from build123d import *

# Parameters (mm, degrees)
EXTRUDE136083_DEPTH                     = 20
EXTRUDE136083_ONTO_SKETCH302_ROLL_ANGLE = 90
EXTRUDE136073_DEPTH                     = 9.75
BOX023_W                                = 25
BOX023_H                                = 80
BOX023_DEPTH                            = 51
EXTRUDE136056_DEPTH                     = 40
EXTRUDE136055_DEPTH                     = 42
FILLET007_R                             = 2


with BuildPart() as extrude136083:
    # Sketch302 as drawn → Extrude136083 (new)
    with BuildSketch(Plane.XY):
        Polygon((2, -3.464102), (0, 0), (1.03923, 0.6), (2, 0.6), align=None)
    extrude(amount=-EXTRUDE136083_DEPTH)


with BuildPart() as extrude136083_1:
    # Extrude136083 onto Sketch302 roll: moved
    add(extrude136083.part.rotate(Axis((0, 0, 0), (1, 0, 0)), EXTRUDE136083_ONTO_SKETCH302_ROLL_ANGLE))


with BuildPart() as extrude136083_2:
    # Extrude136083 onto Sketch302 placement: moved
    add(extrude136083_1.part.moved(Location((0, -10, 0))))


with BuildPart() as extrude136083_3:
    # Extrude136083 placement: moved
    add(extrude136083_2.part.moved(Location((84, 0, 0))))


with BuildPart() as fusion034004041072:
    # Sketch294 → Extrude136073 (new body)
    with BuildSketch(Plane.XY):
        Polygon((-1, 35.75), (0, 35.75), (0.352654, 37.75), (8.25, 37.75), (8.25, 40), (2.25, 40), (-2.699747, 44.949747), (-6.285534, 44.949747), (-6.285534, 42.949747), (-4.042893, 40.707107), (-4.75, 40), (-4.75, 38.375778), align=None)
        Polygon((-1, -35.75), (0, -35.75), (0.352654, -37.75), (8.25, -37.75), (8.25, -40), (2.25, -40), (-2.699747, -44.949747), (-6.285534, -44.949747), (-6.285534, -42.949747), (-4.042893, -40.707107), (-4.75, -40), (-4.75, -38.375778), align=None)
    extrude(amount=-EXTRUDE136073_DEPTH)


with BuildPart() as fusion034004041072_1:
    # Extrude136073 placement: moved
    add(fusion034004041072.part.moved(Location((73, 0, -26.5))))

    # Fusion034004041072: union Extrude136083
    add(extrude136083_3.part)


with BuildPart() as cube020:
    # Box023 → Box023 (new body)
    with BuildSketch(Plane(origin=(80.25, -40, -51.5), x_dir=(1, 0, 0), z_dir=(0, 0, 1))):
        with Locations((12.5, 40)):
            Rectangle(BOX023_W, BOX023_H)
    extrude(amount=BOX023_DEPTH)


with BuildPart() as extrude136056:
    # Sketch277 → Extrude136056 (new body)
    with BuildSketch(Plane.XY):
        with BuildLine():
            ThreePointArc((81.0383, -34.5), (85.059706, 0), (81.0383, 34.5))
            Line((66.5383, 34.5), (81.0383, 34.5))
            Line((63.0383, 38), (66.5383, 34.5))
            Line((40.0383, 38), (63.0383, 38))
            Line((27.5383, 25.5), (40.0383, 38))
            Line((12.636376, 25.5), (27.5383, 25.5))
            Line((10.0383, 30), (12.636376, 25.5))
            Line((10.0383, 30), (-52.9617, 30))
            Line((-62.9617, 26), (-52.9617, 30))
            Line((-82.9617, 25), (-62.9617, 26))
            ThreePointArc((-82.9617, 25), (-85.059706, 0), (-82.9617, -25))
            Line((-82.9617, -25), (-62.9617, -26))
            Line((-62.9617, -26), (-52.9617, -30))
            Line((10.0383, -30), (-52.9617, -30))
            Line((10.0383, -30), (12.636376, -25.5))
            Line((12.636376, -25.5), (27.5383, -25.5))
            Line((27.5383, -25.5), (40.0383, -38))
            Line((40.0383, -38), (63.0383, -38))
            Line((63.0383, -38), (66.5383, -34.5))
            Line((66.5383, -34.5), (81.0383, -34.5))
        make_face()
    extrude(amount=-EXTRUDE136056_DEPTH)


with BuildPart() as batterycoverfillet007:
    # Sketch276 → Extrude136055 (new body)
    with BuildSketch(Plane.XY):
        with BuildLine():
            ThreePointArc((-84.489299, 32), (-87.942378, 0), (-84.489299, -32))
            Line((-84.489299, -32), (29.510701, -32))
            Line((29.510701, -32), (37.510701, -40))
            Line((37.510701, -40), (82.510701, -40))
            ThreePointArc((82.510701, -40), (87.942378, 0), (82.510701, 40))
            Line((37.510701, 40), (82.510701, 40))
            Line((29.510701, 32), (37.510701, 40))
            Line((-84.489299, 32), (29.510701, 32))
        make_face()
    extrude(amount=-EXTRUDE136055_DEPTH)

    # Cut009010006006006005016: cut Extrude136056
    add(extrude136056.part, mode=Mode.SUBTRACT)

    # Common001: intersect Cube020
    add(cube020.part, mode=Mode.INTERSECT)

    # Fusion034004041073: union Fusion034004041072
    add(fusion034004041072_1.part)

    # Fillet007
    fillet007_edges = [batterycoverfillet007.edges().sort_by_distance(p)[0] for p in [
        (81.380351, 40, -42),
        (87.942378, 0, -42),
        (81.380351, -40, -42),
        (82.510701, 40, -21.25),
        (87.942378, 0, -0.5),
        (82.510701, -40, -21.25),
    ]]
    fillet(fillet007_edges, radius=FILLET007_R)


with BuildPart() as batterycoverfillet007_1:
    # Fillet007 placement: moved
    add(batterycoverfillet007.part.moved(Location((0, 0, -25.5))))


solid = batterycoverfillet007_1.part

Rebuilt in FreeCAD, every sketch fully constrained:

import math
import FreeCAD as App
import Part
import Sketcher

V = App.Vector
Q = App.Units.Quantity


def edges_at(feature, points):
    """Names of the edges that pass closest to the given points."""
    edges = feature.Shape.Edges
    near = lambda p: min(range(len(edges)), key=lambda i: edges[i].distToShape(Part.Vertex(*p))[0])
    return sorted({f"Edge{near(p) + 1}" for p in points})

doc = App.newDocument("Part")
body = doc.addObject("PartDesign::Body", "Body")

sketch1 = doc.addObject("Sketcher::SketchObject", "Sketch")
body.addObject(sketch1)
sketch1.AttachmentSupport = (doc.XY_Plane, [""])
sketch1.MapMode = "FlatFace"
sketch1.addGeometry(Part.LineSegment(V(0, 0, 0), V(2, -3.5, 0)), False)
sketch1.addGeometry(Part.LineSegment(V(2, -3.5, 0), V(2, 0.6, 0)), False)
sketch1.addGeometry(Part.LineSegment(V(2, 0.6, 0), V(1, 0.6, 0)), False)
sketch1.addGeometry(Part.LineSegment(V(1, 0.6, 0), V(0, 0, 0)), False)
sketch1.addConstraint(Sketcher.Constraint("Coincident", 0, 2, 1, 1))
sketch1.addConstraint(Sketcher.Constraint("Coincident", 1, 2, 2, 1))
sketch1.addConstraint(Sketcher.Constraint("Coincident", 2, 2, 3, 1))
sketch1.addConstraint(Sketcher.Constraint("Coincident", 3, 2, 0, 1))
sketch1.addConstraint(Sketcher.Constraint("Vertical", 1))
sketch1.addConstraint(Sketcher.Constraint("Horizontal", 2))
sketch1.addConstraint(Sketcher.Constraint("Coincident", 3, 2, -1, 1))
sketch1.addConstraint(Sketcher.Constraint("Perpendicular", 0, 3))
sketch1.addConstraint(Sketcher.Constraint("Angle", 0, Q("-60.000003 deg")))
sketch1.addConstraint(Sketcher.Constraint("Distance", 0, 4.0))
sketch1.addConstraint(Sketcher.Constraint("Distance", 3, 1.2))
pad1 = doc.addObject("PartDesign::Pad", "Pad")
body.addObject(pad1)
pad1.Profile = sketch1
pad1.Length = 20
pad1.Reversed = True
body2 = doc.addObject("PartDesign::Body", "Body001")
doc.recompute()

body.Placement = App.Placement(V(0, 0, 0), App.Rotation(V(1, 0, 0), 90))
boolean = doc.addObject("PartDesign::Boolean", "Boolean")
body2.addObject(boolean)
boolean.Type = "Fuse"
boolean.addObjects([body])
body3 = doc.addObject("PartDesign::Body", "Body002")
doc.recompute()

body2.Placement = App.Placement(V(0, -10, 0), App.Rotation(V(0, 0, 1), 0))
boolean2 = doc.addObject("PartDesign::Boolean", "Boolean001")
body3.addObject(boolean2)
boolean2.Type = "Fuse"
boolean2.addObjects([body2])
body4 = doc.addObject("PartDesign::Body", "Body003")
doc.recompute()

body3.Placement = App.Placement(V(84, 0, 0), App.Rotation(V(0, 0, 1), 0))
boolean3 = doc.addObject("PartDesign::Boolean", "Boolean002")
body4.addObject(boolean3)
boolean3.Type = "Fuse"
boolean3.addObjects([body3])
body5 = doc.addObject("PartDesign::Body", "Body004")
body5.AllowCompound = True

sketch2 = doc.addObject("Sketcher::SketchObject", "Sketch001")
body5.addObject(sketch2)
sketch2.AttachmentSupport = (doc.getObject("XY_Plane004"), [""])
sketch2.MapMode = "FlatFace"
sketch2.addGeometry(Part.LineSegment(V(-1, 35.8, 0), V(0, 35.8, 0)), False)
sketch2.addGeometry(Part.LineSegment(V(0, 35.8, 0), V(0.4, 37.8, 0)), False)
sketch2.addGeometry(Part.LineSegment(V(0.4, 37.8, 0), V(8.2, 37.8, 0)), False)
sketch2.addGeometry(Part.LineSegment(V(8.2, 37.8, 0), V(8.2, 40, 0)), False)
sketch2.addGeometry(Part.LineSegment(V(8.2, 40, 0), V(2.2, 40, 0)), False)
sketch2.addGeometry(Part.LineSegment(V(2.2, 40, 0), V(-2.7, 44.9, 0)), False)
sketch2.addGeometry(Part.LineSegment(V(-2.7, 44.9, 0), V(-6.3, 44.9, 0)), False)
sketch2.addGeometry(Part.LineSegment(V(-6.3, 44.9, 0), V(-6.3, 42.9, 0)), False)
sketch2.addGeometry(Part.LineSegment(V(-6.3, 42.9, 0), V(-4, 40.7, 0)), False)
sketch2.addGeometry(Part.LineSegment(V(-4, 40.7, 0), V(-4.8, 40, 0)), False)
sketch2.addGeometry(Part.LineSegment(V(-4.8, 40, 0), V(-4.8, 38.4, 0)), False)
sketch2.addGeometry(Part.LineSegment(V(-4.8, 38.4, 0), V(-1, 35.8, 0)), False)
sketch2.addGeometry(Part.LineSegment(V(0, -35.8, 0), V(-1, -35.8, 0)), False)
sketch2.addGeometry(Part.LineSegment(V(-1, -35.8, 0), V(-4.8, -38.4, 0)), False)
sketch2.addGeometry(Part.LineSegment(V(-4.8, -38.4, 0), V(-4.8, -40, 0)), False)
sketch2.addGeometry(Part.LineSegment(V(-4.8, -40, 0), V(-4, -40.7, 0)), False)
sketch2.addGeometry(Part.LineSegment(V(-4, -40.7, 0), V(-6.3, -42.9, 0)), False)
sketch2.addGeometry(Part.LineSegment(V(-6.3, -42.9, 0), V(-6.3, -44.9, 0)), False)
sketch2.addGeometry(Part.LineSegment(V(-6.3, -44.9, 0), V(-2.7, -44.9, 0)), False)
sketch2.addGeometry(Part.LineSegment(V(-2.7, -44.9, 0), V(2.2, -40, 0)), False)
sketch2.addGeometry(Part.LineSegment(V(2.2, -40, 0), V(8.2, -40, 0)), False)
sketch2.addGeometry(Part.LineSegment(V(8.2, -40, 0), V(8.2, -37.8, 0)), False)
sketch2.addGeometry(Part.LineSegment(V(8.2, -37.8, 0), V(0.4, -37.8, 0)), False)
sketch2.addGeometry(Part.LineSegment(V(0.4, -37.8, 0), V(0, -35.8, 0)), False)
sketch2.addConstraint(Sketcher.Constraint("Coincident", 0, 2, 1, 1))
sketch2.addConstraint(Sketcher.Constraint("Coincident", 1, 2, 2, 1))
sketch2.addConstraint(Sketcher.Constraint("Coincident", 2, 2, 3, 1))
sketch2.addConstraint(Sketcher.Constraint("Coincident", 3, 2, 4, 1))
sketch2.addConstraint(Sketcher.Constraint("Coincident", 4, 2, 5, 1))
sketch2.addConstraint(Sketcher.Constraint("Coincident", 5, 2, 6, 1))
sketch2.addConstraint(Sketcher.Constraint("Coincident", 6, 2, 7, 1))
sketch2.addConstraint(Sketcher.Constraint("Coincident", 7, 2, 8, 1))
sketch2.addConstraint(Sketcher.Constraint("Coincident", 8, 2, 9, 1))
sketch2.addConstraint(Sketcher.Constraint("Coincident", 9, 2, 10, 1))
sketch2.addConstraint(Sketcher.Constraint("Coincident", 10, 2, 11, 1))
sketch2.addConstraint(Sketcher.Constraint("Coincident", 11, 2, 0, 1))
sketch2.addConstraint(Sketcher.Constraint("Coincident", 12, 2, 13, 1))
sketch2.addConstraint(Sketcher.Constraint("Coincident", 13, 2, 14, 1))
sketch2.addConstraint(Sketcher.Constraint("Coincident", 14, 2, 15, 1))
sketch2.addConstraint(Sketcher.Constraint("Coincident", 15, 2, 16, 1))
sketch2.addConstraint(Sketcher.Constraint("Coincident", 16, 2, 17, 1))
sketch2.addConstraint(Sketcher.Constraint("Coincident", 17, 2, 18, 1))
sketch2.addConstraint(Sketcher.Constraint("Coincident", 18, 2, 19, 1))
sketch2.addConstraint(Sketcher.Constraint("Coincident", 19, 2, 20, 1))
sketch2.addConstraint(Sketcher.Constraint("Coincident", 20, 2, 21, 1))
sketch2.addConstraint(Sketcher.Constraint("Coincident", 21, 2, 22, 1))
sketch2.addConstraint(Sketcher.Constraint("Coincident", 22, 2, 23, 1))
sketch2.addConstraint(Sketcher.Constraint("Coincident", 23, 2, 12, 1))
sketch2.addConstraint(Sketcher.Constraint("Horizontal", 0))
sketch2.addConstraint(Sketcher.Constraint("Horizontal", 2))
sketch2.addConstraint(Sketcher.Constraint("Vertical", 3))
sketch2.addConstraint(Sketcher.Constraint("Horizontal", 4))
sketch2.addConstraint(Sketcher.Constraint("Horizontal", 6))
sketch2.addConstraint(Sketcher.Constraint("Vertical", 7))
sketch2.addConstraint(Sketcher.Constraint("Vertical", 10))
sketch2.addConstraint(Sketcher.Constraint("Horizontal", 12))
sketch2.addConstraint(Sketcher.Constraint("Vertical", 14))
sketch2.addConstraint(Sketcher.Constraint("Vertical", 17))
sketch2.addConstraint(Sketcher.Constraint("Horizontal", 18))
sketch2.addConstraint(Sketcher.Constraint("Horizontal", 20))
sketch2.addConstraint(Sketcher.Constraint("Vertical", 21))
sketch2.addConstraint(Sketcher.Constraint("Horizontal", 22))
sketch2.addConstraint(Sketcher.Constraint("Symmetric", 0, 2, 23, 2, -1, 1))
sketch2.addConstraint(Sketcher.Constraint("Symmetric", 10, 2, 13, 2, -1))
sketch2.addConstraint(Sketcher.Constraint("Symmetric", 8, 2, 15, 2, -1))
sketch2.addConstraint(Sketcher.Constraint("Symmetric", 7, 2, 16, 2, -1))
sketch2.addConstraint(Sketcher.Constraint("Symmetric", 5, 2, 18, 2, -1))
sketch2.addConstraint(Sketcher.Constraint("Symmetric", 4, 2, 19, 2, -1))
sketch2.addConstraint(Sketcher.Constraint("Symmetric", 2, 2, 21, 2, -1))
sketch2.addConstraint(Sketcher.Constraint("PointOnObject", 0, 2, -2))
sketch2.addConstraint(Sketcher.Constraint("Parallel", 5, 8))
sketch2.addConstraint(Sketcher.Constraint("Perpendicular", 8, 9))
sketch2.addConstraint(Sketcher.Constraint("Perpendicular", 9, 15))
sketch2.addConstraint(Sketcher.Constraint("Perpendicular", 15, 16))
sketch2.addConstraint(Sketcher.Constraint("Horizontal", 4, 2, 9, 2))
sketch2.addConstraint(Sketcher.Constraint("Vertical", 11, 2, 12, 2))
sketch2.addConstraint(Sketcher.Constraint("Vertical", 1, 2, 22, 2))
sketch2.addConstraint(Sketcher.Constraint("DistanceX", 0, 1, 0, 2, 1.0))
sketch2.addConstraint(Sketcher.Constraint("DistanceX", 4, 2, 4, 1, 6.0))
sketch2.addConstraint(Sketcher.Constraint("DistanceY", 7, 2, 7, 1, 2.0))
sketch2.addConstraint(Sketcher.Constraint("Angle", 1, Q("79.999999 deg")))
sketch2.addConstraint(Sketcher.Constraint("Angle", 11, Q("-34.999997 deg")))
sketch2.addConstraint(Sketcher.Constraint("Distance", 5, 6.999999))
sketch2.addConstraint(Sketcher.Constraint("Distance", 9, 1.0))
sketch2.addConstraint(Sketcher.Constraint("DistanceY", -1, 1, 3, 2, 40.0))
sketch2.addConstraint(Sketcher.Constraint("DistanceY", 0, 2, 1, 2, 2.0))
sketch2.addConstraint(Sketcher.Constraint("DistanceX", 14, 2, 19, 2, 7.0))
sketch2.addConstraint(Sketcher.Constraint("DistanceY", 3, 1, 3, 2, 2.25))
sketch2.addConstraint(Sketcher.Constraint("DistanceX", -1, 1, 2, 2, 8.25))
pad2 = doc.addObject("PartDesign::Pad", "Pad001")
body5.addObject(pad2)
pad2.Profile = sketch2
pad2.Length = 9.75
pad2.Reversed = True
body6 = doc.addObject("PartDesign::Body", "Body005")
body6.AllowCompound = True
doc.recompute()

body5.Placement = App.Placement(V(73, 0, -26.5), App.Rotation(V(0, 0, 1), 0))
boolean4 = doc.addObject("PartDesign::Boolean", "Boolean003")
body6.addObject(boolean4)
boolean4.Type = "Fuse"
boolean4.addObjects([body5])
doc.recompute()

boolean5 = doc.addObject("PartDesign::Boolean", "Boolean004")
body6.addObject(boolean5)
boolean5.Type = "Fuse"
boolean5.addObjects([body4])
body7 = doc.addObject("PartDesign::Body", "Body006")

sketch3 = doc.addObject("Sketcher::SketchObject", "Sketch002")
body7.addObject(sketch3)
sketch3.AttachmentSupport = (doc.getObject("XY_Plane006"), [""])
sketch3.MapMode = "FlatFace"
sketch3.AttachmentOffset = App.Placement(V(0, 0, -51.5), App.Rotation())
sketch3.addGeometry(Part.LineSegment(V(80, 40, 0), V(80, -40, 0)), False)
sketch3.addGeometry(Part.LineSegment(V(80, -40, 0), V(105, -40, 0)), False)
sketch3.addGeometry(Part.LineSegment(V(105, -40, 0), V(105, 40, 0)), False)
sketch3.addGeometry(Part.LineSegment(V(105, 40, 0), V(80, 40, 0)), False)
sketch3.addConstraint(Sketcher.Constraint("Coincident", 0, 2, 1, 1))
sketch3.addConstraint(Sketcher.Constraint("Coincident", 1, 2, 2, 1))
sketch3.addConstraint(Sketcher.Constraint("Coincident", 2, 2, 3, 1))
sketch3.addConstraint(Sketcher.Constraint("Coincident", 3, 2, 0, 1))
sketch3.addConstraint(Sketcher.Constraint("Vertical", 0))
sketch3.addConstraint(Sketcher.Constraint("Horizontal", 1))
sketch3.addConstraint(Sketcher.Constraint("Vertical", 2))
sketch3.addConstraint(Sketcher.Constraint("Horizontal", 3))
sketch3.addConstraint(Sketcher.Constraint("DistanceX", 1, 1, 1, 2, 25.0))
sketch3.addConstraint(Sketcher.Constraint("DistanceY", 0, 2, 0, 1, 80.0))
sketch3.addConstraint(Sketcher.Constraint("DistanceY", 0, 2, -1, 1, 40.0))
sketch3.addConstraint(Sketcher.Constraint("DistanceX", -1, 1, 0, 2, 80.25))
pad3 = doc.addObject("PartDesign::Pad", "Pad002")
body7.addObject(pad3)
pad3.Profile = sketch3
pad3.Length = 51
body8 = doc.addObject("PartDesign::Body", "Body007")

sketch4 = doc.addObject("Sketcher::SketchObject", "Sketch003")
body8.addObject(sketch4)
sketch4.AttachmentSupport = (doc.getObject("XY_Plane007"), [""])
sketch4.MapMode = "FlatFace"
sketch4.addGeometry(Part.ArcOfCircle(Part.Circle(V(-64.9, 0, 0), V(0, 0, 1), 150), math.radians(-13), math.radians(13)), False)
sketch4.addGeometry(Part.LineSegment(V(81, 34.5, 0), V(66.5, 34.5, 0)), False)
sketch4.addGeometry(Part.LineSegment(V(66.5, 34.5, 0), V(63, 38, 0)), False)
sketch4.addGeometry(Part.LineSegment(V(63, 38, 0), V(40, 38, 0)), False)
sketch4.addGeometry(Part.LineSegment(V(40, 38, 0), V(27.5, 25.5, 0)), False)
sketch4.addGeometry(Part.LineSegment(V(27.5, 25.5, 0), V(12.6, 25.5, 0)), False)
sketch4.addGeometry(Part.LineSegment(V(12.6, 25.5, 0), V(10, 30, 0)), False)
sketch4.addGeometry(Part.LineSegment(V(10, 30, 0), V(-53, 30, 0)), False)
sketch4.addGeometry(Part.LineSegment(V(-53, 30, 0), V(-63, 26, 0)), False)
sketch4.addGeometry(Part.LineSegment(V(-63, 26, 0), V(-83, 25, 0)), False)
sketch4.addGeometry(Part.ArcOfCircle(Part.Circle(V(64.9, 0, 0), V(0, 0, 1), 150), math.radians(170.41), math.radians(189.59)), False)
sketch4.addGeometry(Part.LineSegment(V(-83, -25, 0), V(-63, -26, 0)), False)
sketch4.addGeometry(Part.LineSegment(V(-63, -26, 0), V(-53, -30, 0)), False)
sketch4.addGeometry(Part.LineSegment(V(-53, -30, 0), V(10, -30, 0)), False)
sketch4.addGeometry(Part.LineSegment(V(10, -30, 0), V(12.6, -25.5, 0)), False)
sketch4.addGeometry(Part.LineSegment(V(12.6, -25.5, 0), V(27.5, -25.5, 0)), False)
sketch4.addGeometry(Part.LineSegment(V(27.5, -25.5, 0), V(40, -38, 0)), False)
sketch4.addGeometry(Part.LineSegment(V(40, -38, 0), V(63, -38, 0)), False)
sketch4.addGeometry(Part.LineSegment(V(63, -38, 0), V(66.5, -34.5, 0)), False)
sketch4.addGeometry(Part.LineSegment(V(66.5, -34.5, 0), V(81, -34.5, 0)), False)
sketch4.addConstraint(Sketcher.Constraint("Coincident", 0, 2, 1, 1))
sketch4.addConstraint(Sketcher.Constraint("Coincident", 1, 2, 2, 1))
sketch4.addConstraint(Sketcher.Constraint("Coincident", 2, 2, 3, 1))
sketch4.addConstraint(Sketcher.Constraint("Coincident", 3, 2, 4, 1))
sketch4.addConstraint(Sketcher.Constraint("Coincident", 4, 2, 5, 1))
sketch4.addConstraint(Sketcher.Constraint("Coincident", 5, 2, 6, 1))
sketch4.addConstraint(Sketcher.Constraint("Coincident", 6, 2, 7, 1))
sketch4.addConstraint(Sketcher.Constraint("Coincident", 7, 2, 8, 1))
sketch4.addConstraint(Sketcher.Constraint("Coincident", 8, 2, 9, 1))
sketch4.addConstraint(Sketcher.Constraint("Coincident", 9, 2, 10, 1))
sketch4.addConstraint(Sketcher.Constraint("Coincident", 10, 2, 11, 1))
sketch4.addConstraint(Sketcher.Constraint("Coincident", 11, 2, 12, 1))
sketch4.addConstraint(Sketcher.Constraint("Coincident", 12, 2, 13, 1))
sketch4.addConstraint(Sketcher.Constraint("Coincident", 13, 2, 14, 1))
sketch4.addConstraint(Sketcher.Constraint("Coincident", 14, 2, 15, 1))
sketch4.addConstraint(Sketcher.Constraint("Coincident", 15, 2, 16, 1))
sketch4.addConstraint(Sketcher.Constraint("Coincident", 16, 2, 17, 1))
sketch4.addConstraint(Sketcher.Constraint("Coincident", 17, 2, 18, 1))
sketch4.addConstraint(Sketcher.Constraint("Coincident", 18, 2, 19, 1))
sketch4.addConstraint(Sketcher.Constraint("Coincident", 19, 2, 0, 1))
sketch4.addConstraint(Sketcher.Constraint("Horizontal", 1))
sketch4.addConstraint(Sketcher.Constraint("Horizontal", 3))
sketch4.addConstraint(Sketcher.Constraint("Horizontal", 5))
sketch4.addConstraint(Sketcher.Constraint("Horizontal", 7))
sketch4.addConstraint(Sketcher.Constraint("Horizontal", 13))
sketch4.addConstraint(Sketcher.Constraint("Horizontal", 15))
sketch4.addConstraint(Sketcher.Constraint("Horizontal", 17))
sketch4.addConstraint(Sketcher.Constraint("Horizontal", 19))
sketch4.addConstraint(Sketcher.Constraint("Symmetric", 9, 2, 10, 2, -1))
sketch4.addConstraint(Sketcher.Constraint("Symmetric", 8, 2, 11, 2, -1))
sketch4.addConstraint(Sketcher.Constraint("Symmetric", 7, 2, 12, 2, -1))
sketch4.addConstraint(Sketcher.Constraint("Symmetric", 5, 2, 14, 2, -1))
sketch4.addConstraint(Sketcher.Constraint("Symmetric", 3, 2, 16, 2, -1))
sketch4.addConstraint(Sketcher.Constraint("Symmetric", 1, 2, 18, 2, -1))
sketch4.addConstraint(Sketcher.Constraint("PointOnObject", 0, 3, -1))
sketch4.addConstraint(Sketcher.Constraint("Perpendicular", 2, 4))
sketch4.addConstraint(Sketcher.Constraint("Perpendicular", 4, 16))
sketch4.addConstraint(Sketcher.Constraint("Perpendicular", 16, 18))
sketch4.addConstraint(Sketcher.Constraint("Vertical", 6, 2, 13, 2))
sketch4.addConstraint(Sketcher.Constraint("Vertical", 4, 2, 15, 2))
sketch4.addConstraint(Sketcher.Constraint("DistanceX", 3, 2, 3, 1, 23.0))
sketch4.addConstraint(Sketcher.Constraint("DistanceX", 7, 2, 7, 1, 63.0))
sketch4.addConstraint(Sketcher.Constraint("Angle", 6, Q("119.999998 deg")))
sketch4.addConstraint(Sketcher.Constraint("DistanceX", 1, 2, 1, 1, 14.5))
sketch4.addConstraint(Sketcher.Constraint("DistanceY", -1, 1, 2, 2, 38.0))
sketch4.addConstraint(Sketcher.Constraint("DistanceY", -1, 1, 6, 2, 30.0))
sketch4.addConstraint(Sketcher.Constraint("DistanceY", -1, 1, 8, 2, 26.0))
sketch4.addConstraint(Sketcher.Constraint("DistanceY", -1, 1, 9, 2, 25.0))
sketch4.addConstraint(Sketcher.Constraint("DistanceX", 2, 2, 0, 2, 18.0))
sketch4.addConstraint(Sketcher.Constraint("DistanceX", 4, 2, 1, 2, 39.0))
sketch4.addConstraint(Sketcher.Constraint("DistanceX", 6, 2, 3, 2, 30.0))
sketch4.addConstraint(Sketcher.Constraint("DistanceX", 8, 2, 7, 2, 10.0))
sketch4.addConstraint(Sketcher.Constraint("DistanceX", 9, 2, 8, 2, 20.0))
sketch4.addConstraint(Sketcher.Constraint("Radius", 0, 149.999988))
sketch4.addConstraint(Sketcher.Constraint("Radius", 10, 149.999959))
sketch4.addConstraint(Sketcher.Constraint("DistanceX", -1, 1, 0, 2, 81.0383))
pad4 = doc.addObject("PartDesign::Pad", "Pad003")
body8.addObject(pad4)
pad4.Profile = sketch4
pad4.Length = 40
pad4.Reversed = True
body9 = doc.addObject("PartDesign::Body", "Body008")

sketch5 = doc.addObject("Sketcher::SketchObject", "Sketch004")
body9.addObject(sketch5)
sketch5.AttachmentSupport = (doc.getObject("XY_Plane008"), [""])
sketch5.MapMode = "FlatFace"
sketch5.addGeometry(Part.ArcOfCircle(Part.Circle(V(62, 0, 0), V(0, 0, 1), 150), math.radians(168), math.radians(192)), False)
sketch5.addGeometry(Part.LineSegment(V(-84, -32, 0), V(30, -32, 0)), False)
sketch5.addGeometry(Part.LineSegment(V(30, -32, 0), V(38, -40, 0)), False)
sketch5.addGeometry(Part.LineSegment(V(38, -40, 0), V(83, -40, 0)), False)
sketch5.addGeometry(Part.ArcOfCircle(Part.Circle(V(-62, 0, 0), V(0, 0, 1), 150), math.radians(-15), math.radians(15)), False)
sketch5.addGeometry(Part.LineSegment(V(83, 40, 0), V(38, 40, 0)), False)
sketch5.addGeometry(Part.LineSegment(V(38, 40, 0), V(30, 32, 0)), False)
sketch5.addGeometry(Part.LineSegment(V(30, 32, 0), V(-84, 32, 0)), False)
sketch5.addConstraint(Sketcher.Constraint("Coincident", 0, 2, 1, 1))
sketch5.addConstraint(Sketcher.Constraint("Coincident", 1, 2, 2, 1))
sketch5.addConstraint(Sketcher.Constraint("Coincident", 2, 2, 3, 1))
sketch5.addConstraint(Sketcher.Constraint("Coincident", 3, 2, 4, 1))
sketch5.addConstraint(Sketcher.Constraint("Coincident", 4, 2, 5, 1))
sketch5.addConstraint(Sketcher.Constraint("Coincident", 5, 2, 6, 1))
sketch5.addConstraint(Sketcher.Constraint("Coincident", 6, 2, 7, 1))
sketch5.addConstraint(Sketcher.Constraint("Coincident", 7, 2, 0, 1))
sketch5.addConstraint(Sketcher.Constraint("Horizontal", 1))
sketch5.addConstraint(Sketcher.Constraint("Horizontal", 3))
sketch5.addConstraint(Sketcher.Constraint("Horizontal", 5))
sketch5.addConstraint(Sketcher.Constraint("Horizontal", 7))
sketch5.addConstraint(Sketcher.Constraint("Symmetric", 0, 3, 4, 3, -1, 1))
sketch5.addConstraint(Sketcher.Constraint("Symmetric", 3, 2, 4, 2, -1))
sketch5.addConstraint(Sketcher.Constraint("Symmetric", 1, 2, 6, 2, -1))
sketch5.addConstraint(Sketcher.Constraint("Perpendicular", 2, 6))
sketch5.addConstraint(Sketcher.Constraint("Vertical", 2, 2, 5, 2))
sketch5.addConstraint(Sketcher.Constraint("Radius", 4, 150.000001))
sketch5.addConstraint(Sketcher.Constraint("DistanceX", 1, 1, 1, 2, 114.0))
sketch5.addConstraint(Sketcher.Constraint("DistanceX", 3, 1, 3, 2, 45.0))
sketch5.addConstraint(Sketcher.Constraint("DistanceY", 0, 2, -1, 1, 32.0))
sketch5.addConstraint(Sketcher.Constraint("DistanceY", 2, 2, -1, 1, 40.0))
sketch5.addConstraint(Sketcher.Constraint("Radius", 0, 150.000008))
pad5 = doc.addObject("PartDesign::Pad", "Pad004")
body9.addObject(pad5)
pad5.Profile = sketch5
pad5.Length = 42
pad5.Reversed = True
doc.recompute()

boolean6 = doc.addObject("PartDesign::Boolean", "Boolean005")
body9.addObject(boolean6)
boolean6.Type = "Cut"
boolean6.addObjects([body8])
doc.recompute()

boolean7 = doc.addObject("PartDesign::Boolean", "Boolean006")
body9.addObject(boolean7)
boolean7.Type = "Common"
boolean7.addObjects([body7])
doc.recompute()

boolean8 = doc.addObject("PartDesign::Boolean", "Boolean007")
body9.addObject(boolean8)
boolean8.Type = "Fuse"
boolean8.addObjects([body6])
doc.recompute()

fillet = doc.addObject("PartDesign::Fillet", "Fillet")
body9.addObject(fillet)
fillet.Base = (boolean8, edges_at(boolean8, [
    (81.38, 40, -42),
    (87.942, 0, -42),
    (81.38, -40, -42),
    (82.511, 40, -21.25),
    (87.942, 0, -0.5),
    (82.511, -40, -21.25),
]))
fillet.Radius = 2
body10 = doc.addObject("PartDesign::Body", "Body009")
doc.recompute()

body9.Placement = App.Placement(V(0, 0, -25.5), App.Rotation(V(0, 0, 1), 0))
boolean9 = doc.addObject("PartDesign::Boolean", "Boolean008")
body10.addObject(boolean9)
boolean9.Type = "Fuse"
boolean9.addObjects([body9])

doc.recompute()
